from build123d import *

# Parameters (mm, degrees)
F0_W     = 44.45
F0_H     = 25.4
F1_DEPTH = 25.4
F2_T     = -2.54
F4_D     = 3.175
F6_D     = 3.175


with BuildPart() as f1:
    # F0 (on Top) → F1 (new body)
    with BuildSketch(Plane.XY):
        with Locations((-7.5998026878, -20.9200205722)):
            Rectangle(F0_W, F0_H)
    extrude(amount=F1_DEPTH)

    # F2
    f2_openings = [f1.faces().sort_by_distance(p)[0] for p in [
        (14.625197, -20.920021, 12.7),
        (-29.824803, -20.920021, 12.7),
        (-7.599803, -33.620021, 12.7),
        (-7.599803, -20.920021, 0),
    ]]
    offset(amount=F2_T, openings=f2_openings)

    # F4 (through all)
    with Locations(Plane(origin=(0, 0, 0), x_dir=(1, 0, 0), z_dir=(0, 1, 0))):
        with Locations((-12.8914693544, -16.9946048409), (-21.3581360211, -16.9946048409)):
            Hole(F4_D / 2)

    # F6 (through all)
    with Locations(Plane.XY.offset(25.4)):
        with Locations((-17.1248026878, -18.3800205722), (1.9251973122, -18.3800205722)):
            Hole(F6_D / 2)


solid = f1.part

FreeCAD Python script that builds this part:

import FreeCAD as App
import Part
import Sketcher
from FreeCAD import Vector
Q = App.Units.Quantity


def faces_at(feature, points):
    """Names of the faces that lie closest to the given points."""
    faces = feature.Shape.Faces
    near = lambda p: min(range(len(faces)), key=lambda i: faces[i].distToShape(Part.Vertex(*p))[0])
    return sorted({f"Face{near(p) + 1}" for p in points})


def add_polygon(sketch, points):
    """Adds a closed chain of lines whose ends are joined by coincident constraints."""
    first, n = sketch.GeometryCount, len(points)
    for a, b in zip(points, points[1:] + points[:1]):
        sketch.addGeometry(Part.LineSegment(App.Vector(*a, 0), App.Vector(*b, 0)), False)
    for i in range(n):
        sketch.addConstraint(Sketcher.Constraint("Coincident", first + i, 2, first + (i + 1) % n, 1))

doc = App.newDocument("Part")
body = doc.addObject("PartDesign::Body", "Body")

sketch1 = body.newObject("Sketcher::SketchObject", "Sketch")
sketch1.AttachmentSupport = (doc.getObject("XY_Plane"), [""])
sketch1.MapMode = "FlatFace"
add_polygon(sketch1, [(-30, -8), (-30, -34), (15, -34), (15, -8)])
sketch1.addConstraint([
    Sketcher.Constraint("Vertical", 0),
    Sketcher.Constraint("Horizontal", 1),
    Sketcher.Constraint("Vertical", 2),
    Sketcher.Constraint("Horizontal", 3),
    Sketcher.Constraint("DistanceY", 0, 2, 0, 1, Q("1 in")),
    Sketcher.Constraint("DistanceX", 1, 1, 1, 2, Q("1.75 in")),
    Sketcher.Constraint("DistanceY", 0, 2, -1, 1, 33.620021),
    Sketcher.Constraint("DistanceX", 0, 2, -1, 1, 29.824803),
])
pad1 = body.newObject("PartDesign::Pad", "Pad")
pad1.Profile = sketch1
pad1.Length = Q("1 in")
doc.recompute()

thickness = body.newObject("PartDesign::Thickness", "Thickness")
thickness.Base = (pad1, faces_at(pad1, [
    (14.625, -20.92, 12.7),
    (-29.825, -20.92, 12.7),
    (-7.6, -33.62, 12.7),
    (-7.6, -20.92, 0),
]))
thickness.Value = Q("0.1 in")
thickness.Reversed = True
thickness.Join = "Arc"

sketch2 = body.newObject("Sketcher::SketchObject", "Sketch001")
sketch2.AttachmentSupport = (doc.getObject("XZ_Plane"), [""])
sketch2.MapMode = "FlatFace"
sketch2.addGeometry([
    Part.Circle(Vector(-12.9, 17, 0), Vector(0, 0, 1), 1.6),
    Part.Circle(Vector(-21.4, 17, 0), Vector(0, 0, 1), 1.6),
], False)
sketch2.addConstraint([
    Sketcher.Constraint("Equal", 0, 1),
    Sketcher.Constraint("Horizontal", 0, 3, 1, 3),
    Sketcher.Constraint("Diameter", 0, Q("0.125 in")),
    Sketcher.Constraint("DistanceX", 0, 3, -1, 1, 12.891469),
    Sketcher.Constraint("DistanceY", -1, 1, 0, 3, 16.994605),
    Sketcher.Constraint("DistanceX", 1, 3, -1, 1, 21.358136),
])
doc.recompute()
hole = body.newObject("PartDesign::Hole", "Hole")
hole.Profile = sketch2
hole.ThreadType = "None"
hole.Diameter = Q("0.125 in")
hole.DepthType = "ThroughAll"
hole.Reversed = True

sketch3 = body.newObject("Sketcher::SketchObject", "Sketch002")
sketch3.AttachmentSupport = (doc.getObject("XY_Plane"), [""])
sketch3.MapMode = "FlatFace"
sketch3.AttachmentOffset = App.Placement(Vector(0, 0, 1 * 25.4), App.Rotation())
sketch3.addGeometry([
    Part.Circle(Vector(-17.1, -18.4, 0), Vector(0, 0, 1), 1.6),
    Part.Circle(Vector(1.9, -18.4, 0), Vector(0, 0, 1), 1.6),
], False)
sketch3.addConstraint([
    Sketcher.Constraint("Equal", 0, 1),
    Sketcher.Constraint("Horizontal", 0, 3, 1, 3),
    Sketcher.Constraint("Diameter", 0, Q("0.125 in")),
    Sketcher.Constraint("DistanceX", 0, 3, 1, 3, Q("0.75 in")),
    Sketcher.Constraint("DistanceY", 0, 3, -1, 1, 18.380021),
    Sketcher.Constraint("DistanceX", 0, 3, -1, 1, 17.124803),
])
doc.recompute()
hole2 = body.newObject("PartDesign::Hole", "Hole001")
hole2.Profile = sketch3
hole2.ThreadType = "None"
hole2.Diameter = Q("0.125 in")
hole2.DepthType = "ThroughAll"

doc.recompute()
